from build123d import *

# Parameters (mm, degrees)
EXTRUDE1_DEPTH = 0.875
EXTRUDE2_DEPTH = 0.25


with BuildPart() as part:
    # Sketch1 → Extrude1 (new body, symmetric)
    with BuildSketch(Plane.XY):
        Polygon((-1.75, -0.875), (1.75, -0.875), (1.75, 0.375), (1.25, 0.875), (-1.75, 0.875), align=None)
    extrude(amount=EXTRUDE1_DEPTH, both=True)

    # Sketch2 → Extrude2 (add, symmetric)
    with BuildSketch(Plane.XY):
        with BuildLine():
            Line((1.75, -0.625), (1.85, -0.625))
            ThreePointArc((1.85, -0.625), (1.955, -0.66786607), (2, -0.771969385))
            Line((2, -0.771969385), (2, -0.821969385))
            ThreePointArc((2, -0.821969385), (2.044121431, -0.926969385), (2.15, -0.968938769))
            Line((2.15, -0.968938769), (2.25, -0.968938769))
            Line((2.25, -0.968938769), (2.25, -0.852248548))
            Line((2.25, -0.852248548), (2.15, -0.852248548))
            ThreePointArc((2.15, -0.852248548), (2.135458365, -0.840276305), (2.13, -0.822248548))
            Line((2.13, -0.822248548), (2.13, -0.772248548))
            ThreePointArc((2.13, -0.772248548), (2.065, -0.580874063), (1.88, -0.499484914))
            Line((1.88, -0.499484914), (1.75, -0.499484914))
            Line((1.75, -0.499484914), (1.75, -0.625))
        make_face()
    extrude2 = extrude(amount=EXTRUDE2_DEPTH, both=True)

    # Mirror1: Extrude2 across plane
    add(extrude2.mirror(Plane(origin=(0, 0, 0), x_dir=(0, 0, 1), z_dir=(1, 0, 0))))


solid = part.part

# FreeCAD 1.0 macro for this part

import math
import FreeCAD as App
import Part
import Sketcher

V = App.Vector
Q = App.Units.Quantity


def add_polygon(sketch, points):
    """Adds a closed chain of lines whose ends are joined by coincident constraints."""
    first, n = sketch.GeometryCount, len(points)
    for a, b in zip(points, points[1:] + points[:1]):
        sketch.addGeometry(Part.LineSegment(App.Vector(*a, 0), App.Vector(*b, 0)), False)
    for i in range(n):
        sketch.addConstraint(Sketcher.Constraint("Coincident", first + i, 2, first + (i + 1) % n, 1))

doc = App.newDocument("Part")
body = doc.addObject("PartDesign::Body", "Body")

sketch1 = body.newObject("Sketcher::SketchObject", "Sketch")
sketch1.AttachmentSupport = (doc.getObject("XY_Plane"), [""])
sketch1.MapMode = "FlatFace"
add_polygon(sketch1, [(-1.75, -0.875), (1.75, -0.875), (1.75, 0.375), (1.25, 0.875), (-1.75, 0.875)])
sketch1.addConstraint([
    Sketcher.Constraint("Horizontal", 0),
    Sketcher.Constraint("Vertical", 1),
    Sketcher.Constraint("Horizontal", 3),
    Sketcher.Constraint("Vertical", 4),
    Sketcher.Constraint("Symmetric", 0, 2, 3, 2, -1, 1),
    Sketcher.Constraint("DistanceX", 3, 2, 3, 1, 3.0),
    Sketcher.Constraint("Angle", 2, Q("135 deg")),
    Sketcher.Constraint("DistanceX", 0, 1, 0, 2, 3.5),
    Sketcher.Constraint("DistanceY", 1, 1, 1, 2, 1.25),
])
pad1 = body.newObject("PartDesign::Pad", "Pad")
pad1.Profile = sketch1
pad1.Length = 1.75
pad1.Midplane = True

sketch2 = body.newObject("Sketcher::SketchObject", "Sketch001")
sketch2.AttachmentSupport = (doc.getObject("XY_Plane"), [""])
sketch2.MapMode = "FlatFace"
sketch2.addGeometry([
    Part.LineSegment(V(1.75, -0.625, 0), V(1.85, -0.625, 0)),
    Part.ArcOfCircle(Part.Circle(V(1.85, -0.775031, 0), V(0, 0, 1), 0.150031), math.radians(1.169382), math.radians(90)),
    Part.LineSegment(V(2, -0.771969, 0), V(2, -0.821969, 0)),
    Part.ArcOfCircle(Part.Circle(V(2.147, -0.821969, 0), V(0, 0, 1), 0.147), math.radians(180), math.radians(271.169383)),
    Part.LineSegment(V(2.15, -0.968939, 0), V(2.25, -0.968939, 0)),
    Part.LineSegment(V(2.25, -0.968939, 0), V(2.25, -0.852249, 0)),
    Part.LineSegment(V(2.25, -0.852249, 0), V(2.15, -0.852249, 0)),
    Part.ArcOfCircle(Part.Circle(V(2.1625, -0.822249, 0), V(0, 0, 1), 0.0325), math.radians(179.999996), math.radians(247.38014)),
    Part.LineSegment(V(2.13, -0.822249, 0), V(2.13, -0.772249, 0)),
    Part.ArcOfCircle(Part.Circle(V(1.88, -0.750435, 0), V(0, 0, 1), 0.25095), math.radians(-4.986715), math.radians(90)),
    Part.LineSegment(V(1.88, -0.499485, 0), V(1.75, -0.499485, 0)),
    Part.LineSegment(V(1.75, -0.499485, 0), V(1.75, -0.625, 0)),
], False)
sketch2.addConstraint([
    Sketcher.Constraint("Tangent", 0, 2, 1, 2),
    Sketcher.Constraint("Coincident", 1, 1, 2, 1),
    Sketcher.Constraint("Tangent", 2, 2, 3, 1),
    Sketcher.Constraint("Coincident", 3, 2, 4, 1),
    Sketcher.Constraint("Coincident", 4, 2, 5, 1),
    Sketcher.Constraint("Coincident", 5, 2, 6, 1),
    Sketcher.Constraint("Coincident", 6, 2, 7, 2),
    Sketcher.Constraint("Tangent", 7, 1, 8, 1),
    Sketcher.Constraint("Coincident", 8, 2, 9, 1),
    Sketcher.Constraint("Tangent", 9, 2, 10, 1),
    Sketcher.Constraint("Coincident", 10, 2, 11, 1),
    Sketcher.Constraint("Coincident", 11, 2, 0, 1),
    Sketcher.Constraint("Horizontal", 0),
    Sketcher.Constraint("Vertical", 2),
    Sketcher.Constraint("Horizontal", 4),
    Sketcher.Constraint("Vertical", 5),
    Sketcher.Constraint("Horizontal", 6),
    Sketcher.Constraint("Vertical", 8),
    Sketcher.Constraint("Horizontal", 10),
    Sketcher.Constraint("Vertical", 11),
    Sketcher.Constraint("Vertical", 3, 2, 6, 2),
    Sketcher.Constraint("Equal", 0, 4),
    Sketcher.Constraint("Equal", 2, 8),
    Sketcher.Constraint("DistanceX", 0, 1, 0, 2, 0.1),
    Sketcher.Constraint("DistanceX", -1, 1, 1, 1, 2.0),
    Sketcher.Constraint("Radius", 3, 0.147),
    Sketcher.Constraint("DistanceX", 10, 2, 10, 1, 0.13),
    Sketcher.Constraint("DistanceY", 2, 2, 2, 1, 0.05),
    Sketcher.Constraint("Radius", 7, 0.0325),
    Sketcher.Constraint("DistanceX", -1, 1, 1, 3, 1.85),
    Sketcher.Constraint("DistanceX", -1, 1, 3, 2, 2.15),
    Sketcher.Constraint("DistanceX", -1, 1, 7, 1, 2.13),
    Sketcher.Constraint("Radius", 1, 0.150031),
    Sketcher.Constraint("Radius", 9, 0.25095),
    Sketcher.Constraint("DistanceY", 0, 2, -1, 1, 0.625),
    Sketcher.Constraint("DistanceY", 5, 1, 5, 2, 0.11669),
])
pad2 = body.newObject("PartDesign::Pad", "Pad001")
pad2.Profile = sketch2
pad2.Length = 0.5
pad2.Midplane = True
doc.recompute()

mirrored = body.newObject("PartDesign::Mirrored", "Mirrored")
mirrored.Originals = [pad2]
mirrored.MirrorPlane = (doc.getObject("YZ_Plane"), [""])
body.Tip = mirrored

doc.recompute()
